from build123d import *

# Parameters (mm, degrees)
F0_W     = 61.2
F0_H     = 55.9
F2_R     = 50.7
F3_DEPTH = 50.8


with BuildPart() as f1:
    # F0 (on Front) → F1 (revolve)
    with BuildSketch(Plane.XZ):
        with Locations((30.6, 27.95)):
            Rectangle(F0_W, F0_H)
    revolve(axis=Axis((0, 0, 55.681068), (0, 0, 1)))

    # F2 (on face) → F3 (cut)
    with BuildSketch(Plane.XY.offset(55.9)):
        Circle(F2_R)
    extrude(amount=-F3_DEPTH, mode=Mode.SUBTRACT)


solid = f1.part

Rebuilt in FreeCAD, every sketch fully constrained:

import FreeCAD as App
import Part
import Sketcher

V = App.Vector

doc = App.newDocument("Part")
body = doc.addObject("PartDesign::Body", "Body")

# Sketch on XZ plane
sketch1 = body.newObject("Sketcher::SketchObject", "Sketch")
sketch1.AttachmentSupport = (doc.getObject("XZ_Plane"), [""])
sketch1.MapMode = "FlatFace"
sketch1.addGeometry([
    Part.LineSegment(V(0, 55.9, 0), V(0, 0, 0)),
    Part.LineSegment(V(0, 0, 0), V(61.2, 0, 0)),
    Part.LineSegment(V(61.2, 0, 0), V(61.2, 55.9, 0)),
    Part.LineSegment(V(61.2, 55.9, 0), V(0, 55.9, 0)),
], False)
sketch1.addConstraint([
    Sketcher.Constraint("Coincident", 0, 2, 1, 1),
    Sketcher.Constraint("Coincident", 1, 2, 2, 1),
    Sketcher.Constraint("Coincident", 2, 2, 3, 1),
    Sketcher.Constraint("Coincident", 3, 2, 0, 1),
    Sketcher.Constraint("Vertical", 0),
    Sketcher.Constraint("Horizontal", 1),
    Sketcher.Constraint("Vertical", 2),
    Sketcher.Constraint("Horizontal", 3),
    Sketcher.Constraint("Coincident", 0, 2, -1, 1),
    Sketcher.Constraint("DistanceX", 1, 1, 1, 2, 61.2),
    Sketcher.Constraint("DistanceY", 0, 2, 0, 1, 55.9),
])
revolution = body.newObject("PartDesign::Revolution", "Revolution")
revolution.Profile = sketch1
revolution.ReferenceAxis = (sketch1, ["V_Axis"])
revolution.Angle = 360

# Sketch on XY plane
sketch2 = body.newObject("Sketcher::SketchObject", "Sketch001")
sketch2.AttachmentSupport = (doc.getObject("XY_Plane"), [""])
sketch2.MapMode = "FlatFace"
sketch2.AttachmentOffset = App.Placement(V(0, 0, 55.9), App.Rotation())
sketch2.addGeometry(Part.Circle(V(0, 0, 0), V(0, 0, 1), 50.7), False)
sketch2.addConstraint([
    Sketcher.Constraint("Coincident", 0, 3, -1, 1),
    Sketcher.Constraint("Diameter", 0, 101.4),
])
pocket1 = body.newObject("PartDesign::Pocket", "Pocket")
pocket1.Profile = sketch2
pocket1.Length = 50.8

doc.recompute()
